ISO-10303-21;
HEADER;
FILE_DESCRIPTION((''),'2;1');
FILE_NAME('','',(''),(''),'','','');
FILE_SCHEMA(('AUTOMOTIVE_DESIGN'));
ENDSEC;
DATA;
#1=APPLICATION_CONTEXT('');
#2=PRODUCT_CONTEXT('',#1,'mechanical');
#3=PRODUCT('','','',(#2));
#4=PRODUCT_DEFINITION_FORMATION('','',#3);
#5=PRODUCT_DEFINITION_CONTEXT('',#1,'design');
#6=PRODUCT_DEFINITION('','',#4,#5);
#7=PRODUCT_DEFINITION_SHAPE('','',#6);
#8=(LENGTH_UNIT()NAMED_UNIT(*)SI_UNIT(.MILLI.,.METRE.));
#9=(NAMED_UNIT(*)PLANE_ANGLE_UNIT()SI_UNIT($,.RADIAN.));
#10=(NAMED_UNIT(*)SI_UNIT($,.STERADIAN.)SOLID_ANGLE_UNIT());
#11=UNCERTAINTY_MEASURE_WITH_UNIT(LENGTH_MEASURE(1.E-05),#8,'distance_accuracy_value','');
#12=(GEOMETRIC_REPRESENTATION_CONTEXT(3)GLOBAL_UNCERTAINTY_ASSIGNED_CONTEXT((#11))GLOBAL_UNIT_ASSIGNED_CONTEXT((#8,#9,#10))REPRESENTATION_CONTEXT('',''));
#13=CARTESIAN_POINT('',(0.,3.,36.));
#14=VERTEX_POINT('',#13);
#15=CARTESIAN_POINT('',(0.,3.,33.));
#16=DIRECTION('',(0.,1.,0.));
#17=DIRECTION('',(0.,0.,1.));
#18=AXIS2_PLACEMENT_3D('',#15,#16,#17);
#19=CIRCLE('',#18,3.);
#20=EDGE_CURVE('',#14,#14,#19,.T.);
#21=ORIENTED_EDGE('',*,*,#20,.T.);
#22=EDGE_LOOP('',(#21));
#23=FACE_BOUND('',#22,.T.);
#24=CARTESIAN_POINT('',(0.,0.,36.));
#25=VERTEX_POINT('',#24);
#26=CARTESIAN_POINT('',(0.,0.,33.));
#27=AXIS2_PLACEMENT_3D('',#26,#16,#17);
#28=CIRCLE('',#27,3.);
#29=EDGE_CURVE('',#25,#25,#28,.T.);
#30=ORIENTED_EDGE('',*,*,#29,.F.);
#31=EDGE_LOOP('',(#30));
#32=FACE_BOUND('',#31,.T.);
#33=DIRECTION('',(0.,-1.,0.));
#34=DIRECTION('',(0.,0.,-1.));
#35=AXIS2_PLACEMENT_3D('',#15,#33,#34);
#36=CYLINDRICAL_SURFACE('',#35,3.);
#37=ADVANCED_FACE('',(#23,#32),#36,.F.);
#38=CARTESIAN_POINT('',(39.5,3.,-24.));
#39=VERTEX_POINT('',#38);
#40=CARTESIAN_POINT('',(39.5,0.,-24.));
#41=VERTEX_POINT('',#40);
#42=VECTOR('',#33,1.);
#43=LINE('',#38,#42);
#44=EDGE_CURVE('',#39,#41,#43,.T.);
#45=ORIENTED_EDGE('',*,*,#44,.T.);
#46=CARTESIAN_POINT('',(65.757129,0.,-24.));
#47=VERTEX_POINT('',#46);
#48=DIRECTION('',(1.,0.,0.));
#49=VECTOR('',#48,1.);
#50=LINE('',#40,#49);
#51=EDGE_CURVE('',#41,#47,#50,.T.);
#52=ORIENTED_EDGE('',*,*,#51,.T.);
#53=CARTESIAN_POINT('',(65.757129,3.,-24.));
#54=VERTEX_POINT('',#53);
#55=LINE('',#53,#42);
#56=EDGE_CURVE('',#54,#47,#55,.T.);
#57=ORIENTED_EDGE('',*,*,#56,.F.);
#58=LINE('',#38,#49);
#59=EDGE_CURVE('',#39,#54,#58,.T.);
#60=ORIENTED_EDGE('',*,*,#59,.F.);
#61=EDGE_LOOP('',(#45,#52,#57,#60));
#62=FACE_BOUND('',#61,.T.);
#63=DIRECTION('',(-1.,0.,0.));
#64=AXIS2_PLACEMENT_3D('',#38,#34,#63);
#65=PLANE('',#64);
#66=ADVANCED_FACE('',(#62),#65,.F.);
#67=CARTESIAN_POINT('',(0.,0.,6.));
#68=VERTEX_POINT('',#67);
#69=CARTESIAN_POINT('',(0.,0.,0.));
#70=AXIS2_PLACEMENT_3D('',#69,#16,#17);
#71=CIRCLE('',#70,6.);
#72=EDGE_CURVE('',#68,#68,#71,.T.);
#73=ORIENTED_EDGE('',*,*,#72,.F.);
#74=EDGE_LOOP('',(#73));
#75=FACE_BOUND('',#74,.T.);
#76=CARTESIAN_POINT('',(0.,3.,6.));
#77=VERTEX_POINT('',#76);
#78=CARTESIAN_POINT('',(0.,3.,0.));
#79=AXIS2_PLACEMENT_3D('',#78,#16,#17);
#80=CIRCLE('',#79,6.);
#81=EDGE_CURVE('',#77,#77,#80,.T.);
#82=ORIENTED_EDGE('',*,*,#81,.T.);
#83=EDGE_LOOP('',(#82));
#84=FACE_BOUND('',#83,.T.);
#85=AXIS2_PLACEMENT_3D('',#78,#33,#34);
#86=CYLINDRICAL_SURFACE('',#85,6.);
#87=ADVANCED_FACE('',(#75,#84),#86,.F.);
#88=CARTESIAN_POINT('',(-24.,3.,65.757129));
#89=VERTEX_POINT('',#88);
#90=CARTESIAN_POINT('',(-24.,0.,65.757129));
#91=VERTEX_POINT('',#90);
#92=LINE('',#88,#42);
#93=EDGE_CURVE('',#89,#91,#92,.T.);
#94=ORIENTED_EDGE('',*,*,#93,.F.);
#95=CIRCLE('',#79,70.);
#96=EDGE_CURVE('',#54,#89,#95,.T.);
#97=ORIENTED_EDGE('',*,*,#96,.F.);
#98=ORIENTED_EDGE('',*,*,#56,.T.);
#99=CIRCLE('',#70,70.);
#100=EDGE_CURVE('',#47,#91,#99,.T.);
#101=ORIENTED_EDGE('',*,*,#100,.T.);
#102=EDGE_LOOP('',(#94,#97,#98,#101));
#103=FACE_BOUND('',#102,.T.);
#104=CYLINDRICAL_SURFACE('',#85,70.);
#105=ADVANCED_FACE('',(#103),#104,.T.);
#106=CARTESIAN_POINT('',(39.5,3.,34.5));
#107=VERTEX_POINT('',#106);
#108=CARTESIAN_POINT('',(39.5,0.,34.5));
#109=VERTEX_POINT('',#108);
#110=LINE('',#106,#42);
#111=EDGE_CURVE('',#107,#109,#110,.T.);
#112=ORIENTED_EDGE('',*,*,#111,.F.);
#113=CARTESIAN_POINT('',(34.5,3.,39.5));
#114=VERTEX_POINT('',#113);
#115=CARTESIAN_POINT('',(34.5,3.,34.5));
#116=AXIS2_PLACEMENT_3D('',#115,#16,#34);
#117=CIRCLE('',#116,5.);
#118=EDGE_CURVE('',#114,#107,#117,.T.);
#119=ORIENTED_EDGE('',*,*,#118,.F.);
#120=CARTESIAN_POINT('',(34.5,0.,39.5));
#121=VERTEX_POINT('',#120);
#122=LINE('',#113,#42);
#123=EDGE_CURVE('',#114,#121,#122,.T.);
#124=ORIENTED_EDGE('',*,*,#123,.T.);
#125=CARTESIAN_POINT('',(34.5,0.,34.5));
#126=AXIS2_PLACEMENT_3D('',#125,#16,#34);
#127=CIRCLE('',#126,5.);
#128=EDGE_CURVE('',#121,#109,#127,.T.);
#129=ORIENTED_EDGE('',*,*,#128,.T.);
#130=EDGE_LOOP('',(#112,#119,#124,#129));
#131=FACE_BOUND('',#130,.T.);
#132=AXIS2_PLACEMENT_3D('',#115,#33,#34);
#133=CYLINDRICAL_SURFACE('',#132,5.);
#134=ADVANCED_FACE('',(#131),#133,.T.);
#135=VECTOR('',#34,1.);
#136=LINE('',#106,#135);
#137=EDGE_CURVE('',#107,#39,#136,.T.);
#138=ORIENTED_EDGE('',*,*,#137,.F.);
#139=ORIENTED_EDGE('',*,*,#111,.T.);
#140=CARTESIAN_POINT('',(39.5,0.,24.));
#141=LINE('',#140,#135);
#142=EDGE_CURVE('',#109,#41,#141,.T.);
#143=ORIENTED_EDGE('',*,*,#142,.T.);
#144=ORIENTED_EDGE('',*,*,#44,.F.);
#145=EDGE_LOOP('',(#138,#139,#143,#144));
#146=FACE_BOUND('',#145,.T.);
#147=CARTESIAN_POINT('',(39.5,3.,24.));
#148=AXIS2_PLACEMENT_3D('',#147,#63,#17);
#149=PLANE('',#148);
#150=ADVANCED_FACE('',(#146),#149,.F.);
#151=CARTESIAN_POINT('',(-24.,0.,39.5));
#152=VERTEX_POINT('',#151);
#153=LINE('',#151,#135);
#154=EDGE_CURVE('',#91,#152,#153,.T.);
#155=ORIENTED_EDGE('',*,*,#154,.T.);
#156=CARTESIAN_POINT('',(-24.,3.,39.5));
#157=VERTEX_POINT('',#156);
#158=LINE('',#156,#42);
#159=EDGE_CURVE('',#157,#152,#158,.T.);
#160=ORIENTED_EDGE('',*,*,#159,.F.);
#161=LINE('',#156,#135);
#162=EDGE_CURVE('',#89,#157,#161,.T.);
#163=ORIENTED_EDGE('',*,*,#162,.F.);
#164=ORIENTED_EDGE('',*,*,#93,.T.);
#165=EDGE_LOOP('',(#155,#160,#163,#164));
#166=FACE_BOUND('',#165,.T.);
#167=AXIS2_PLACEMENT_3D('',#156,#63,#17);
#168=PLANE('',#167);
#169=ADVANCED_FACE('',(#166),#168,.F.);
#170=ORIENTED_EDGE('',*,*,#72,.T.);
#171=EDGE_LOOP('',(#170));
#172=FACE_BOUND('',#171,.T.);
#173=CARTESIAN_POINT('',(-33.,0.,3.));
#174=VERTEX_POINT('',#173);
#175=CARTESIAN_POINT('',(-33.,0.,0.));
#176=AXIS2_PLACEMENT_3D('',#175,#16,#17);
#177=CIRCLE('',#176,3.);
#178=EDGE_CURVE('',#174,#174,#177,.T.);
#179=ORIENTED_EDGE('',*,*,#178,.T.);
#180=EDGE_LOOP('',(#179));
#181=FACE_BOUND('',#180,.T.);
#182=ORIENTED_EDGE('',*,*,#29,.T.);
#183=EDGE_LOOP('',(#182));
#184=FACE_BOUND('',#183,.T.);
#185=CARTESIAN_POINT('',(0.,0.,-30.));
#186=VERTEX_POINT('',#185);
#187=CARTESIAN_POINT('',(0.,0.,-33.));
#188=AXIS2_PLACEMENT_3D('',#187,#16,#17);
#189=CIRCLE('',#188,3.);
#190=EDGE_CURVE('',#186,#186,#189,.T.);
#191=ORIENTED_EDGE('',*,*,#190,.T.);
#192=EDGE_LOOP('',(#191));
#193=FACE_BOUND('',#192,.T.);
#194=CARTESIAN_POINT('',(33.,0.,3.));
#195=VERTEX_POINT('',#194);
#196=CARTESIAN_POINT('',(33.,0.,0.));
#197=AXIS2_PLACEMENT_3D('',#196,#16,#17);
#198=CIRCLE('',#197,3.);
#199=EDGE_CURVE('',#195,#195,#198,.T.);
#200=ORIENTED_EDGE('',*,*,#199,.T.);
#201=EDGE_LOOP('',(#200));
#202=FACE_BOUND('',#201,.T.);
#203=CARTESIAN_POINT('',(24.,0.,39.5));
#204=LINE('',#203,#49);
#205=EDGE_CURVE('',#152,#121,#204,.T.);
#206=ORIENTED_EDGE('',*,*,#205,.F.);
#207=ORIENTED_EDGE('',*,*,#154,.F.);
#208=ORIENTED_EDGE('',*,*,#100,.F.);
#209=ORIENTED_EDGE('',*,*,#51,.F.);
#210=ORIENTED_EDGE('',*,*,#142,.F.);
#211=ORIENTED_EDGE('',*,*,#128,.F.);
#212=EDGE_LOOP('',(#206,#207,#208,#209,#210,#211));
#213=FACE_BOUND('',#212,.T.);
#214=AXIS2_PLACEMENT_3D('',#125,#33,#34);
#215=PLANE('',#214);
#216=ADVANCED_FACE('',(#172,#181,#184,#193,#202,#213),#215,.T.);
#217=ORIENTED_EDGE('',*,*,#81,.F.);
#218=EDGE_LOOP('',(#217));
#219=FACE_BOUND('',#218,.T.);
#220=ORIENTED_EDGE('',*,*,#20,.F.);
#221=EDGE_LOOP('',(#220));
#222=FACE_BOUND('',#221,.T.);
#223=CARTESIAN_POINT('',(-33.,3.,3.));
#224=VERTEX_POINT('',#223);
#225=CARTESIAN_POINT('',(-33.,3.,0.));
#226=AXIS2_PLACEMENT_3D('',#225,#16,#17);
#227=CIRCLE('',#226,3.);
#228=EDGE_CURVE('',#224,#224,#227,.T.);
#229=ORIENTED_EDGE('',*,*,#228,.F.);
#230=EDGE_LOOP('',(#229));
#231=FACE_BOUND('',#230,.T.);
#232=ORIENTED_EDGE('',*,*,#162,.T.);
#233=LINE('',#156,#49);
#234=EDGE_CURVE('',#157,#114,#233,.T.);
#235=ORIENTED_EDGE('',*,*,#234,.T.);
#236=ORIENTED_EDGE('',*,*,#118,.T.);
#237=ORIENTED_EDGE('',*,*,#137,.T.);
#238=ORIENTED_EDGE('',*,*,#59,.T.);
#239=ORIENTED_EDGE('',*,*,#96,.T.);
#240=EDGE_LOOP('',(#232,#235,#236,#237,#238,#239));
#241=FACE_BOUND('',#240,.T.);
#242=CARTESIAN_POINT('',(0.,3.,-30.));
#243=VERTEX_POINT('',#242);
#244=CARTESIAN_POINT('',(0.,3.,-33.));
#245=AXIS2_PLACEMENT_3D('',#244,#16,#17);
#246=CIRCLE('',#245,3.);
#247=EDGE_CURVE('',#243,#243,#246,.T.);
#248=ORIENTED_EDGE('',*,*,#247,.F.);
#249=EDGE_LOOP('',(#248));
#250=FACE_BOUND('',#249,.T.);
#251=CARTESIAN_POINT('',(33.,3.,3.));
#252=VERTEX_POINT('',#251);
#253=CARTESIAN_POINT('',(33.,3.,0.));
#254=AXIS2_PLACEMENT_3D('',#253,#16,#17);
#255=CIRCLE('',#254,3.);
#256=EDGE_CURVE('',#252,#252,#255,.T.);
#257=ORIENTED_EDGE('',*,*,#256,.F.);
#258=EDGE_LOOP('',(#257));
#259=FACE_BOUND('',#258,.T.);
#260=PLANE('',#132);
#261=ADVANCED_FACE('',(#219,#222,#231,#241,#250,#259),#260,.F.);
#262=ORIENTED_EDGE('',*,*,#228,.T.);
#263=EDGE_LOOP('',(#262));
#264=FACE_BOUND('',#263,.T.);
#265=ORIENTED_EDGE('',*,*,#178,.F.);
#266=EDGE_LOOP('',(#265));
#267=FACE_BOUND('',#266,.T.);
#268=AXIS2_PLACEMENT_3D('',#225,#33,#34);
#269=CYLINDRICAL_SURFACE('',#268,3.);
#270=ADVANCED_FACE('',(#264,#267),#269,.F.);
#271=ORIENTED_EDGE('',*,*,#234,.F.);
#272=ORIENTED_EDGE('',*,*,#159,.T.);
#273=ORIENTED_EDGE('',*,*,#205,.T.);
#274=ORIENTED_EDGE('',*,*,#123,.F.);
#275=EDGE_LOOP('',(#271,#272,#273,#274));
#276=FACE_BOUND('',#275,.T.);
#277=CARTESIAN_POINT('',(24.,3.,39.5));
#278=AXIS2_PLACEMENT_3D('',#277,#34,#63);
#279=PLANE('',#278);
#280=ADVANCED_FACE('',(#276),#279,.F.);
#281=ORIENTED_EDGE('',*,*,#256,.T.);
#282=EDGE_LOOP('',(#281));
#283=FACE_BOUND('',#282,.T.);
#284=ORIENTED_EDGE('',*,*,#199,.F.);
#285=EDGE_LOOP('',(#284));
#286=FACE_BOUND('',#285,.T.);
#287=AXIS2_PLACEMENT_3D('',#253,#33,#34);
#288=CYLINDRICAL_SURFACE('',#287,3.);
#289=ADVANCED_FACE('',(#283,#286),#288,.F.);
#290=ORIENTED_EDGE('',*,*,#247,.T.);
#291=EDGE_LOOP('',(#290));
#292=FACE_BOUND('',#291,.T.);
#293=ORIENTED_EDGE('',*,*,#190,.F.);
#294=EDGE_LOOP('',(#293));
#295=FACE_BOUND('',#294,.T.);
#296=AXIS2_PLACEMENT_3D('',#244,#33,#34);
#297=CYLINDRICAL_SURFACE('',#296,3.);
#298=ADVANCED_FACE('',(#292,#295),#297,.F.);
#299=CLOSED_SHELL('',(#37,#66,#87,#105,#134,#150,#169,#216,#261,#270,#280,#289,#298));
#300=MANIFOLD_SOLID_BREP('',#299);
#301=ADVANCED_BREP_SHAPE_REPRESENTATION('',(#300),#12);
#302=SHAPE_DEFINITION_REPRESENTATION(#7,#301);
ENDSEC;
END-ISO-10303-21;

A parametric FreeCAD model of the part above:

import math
import FreeCAD as App
import Part
import Sketcher
from FreeCAD import Vector

doc = App.newDocument("Part")
body = doc.addObject("PartDesign::Body", "Body")

# Sketch on XZ plane
sketch1 = doc.addObject("Sketcher::SketchObject", "Sketch")
body.addObject(sketch1)
sketch1.AttachmentSupport = (doc.XZ_Plane, [""])
sketch1.MapMode = "FlatFace"
sketch1.addGeometry([
    Part.ArcOfCircle(Part.Circle(Vector(34.5, 34.5, 0), Vector(0, 0, 1), 5), math.radians(0), math.radians(90)),  # 0
    Part.LineSegment(Vector(39.5, 34.5, 0), Vector(39.5, -24, 0)),  # 1
    Part.LineSegment(Vector(39.5, -24, 0), Vector(65.8, -24, 0)),  # 2
    Part.ArcOfCircle(Part.Circle(Vector(0, 0, 0), Vector(0, 0, 1), 70), math.radians(110), math.radians(340)),  # 3
    Part.LineSegment(Vector(-24, 65.8, 0), Vector(-24, 39.5, 0)),  # 4
    Part.LineSegment(Vector(-24, 39.5, 0), Vector(34.5, 39.5, 0)),  # 5
    Part.Circle(Vector(0, 33, 0), Vector(0, 0, 1), 3),  # 6
    Part.Circle(Vector(-33, 0, 0), Vector(0, 0, 1), 3),  # 7
    Part.Circle(Vector(0, 0, 0), Vector(0, 0, 1), 6),  # 8
    Part.Circle(Vector(33, 0, 0), Vector(0, 0, 1), 3),  # 9
    Part.Circle(Vector(0, -33, 0), Vector(0, 0, 1), 3),  # 10
], False)
sketch1.addConstraint([
    Sketcher.Constraint("Tangent", 0, 1, 1, 1),
    Sketcher.Constraint("Coincident", 1, 2, 2, 1),
    Sketcher.Constraint("Coincident", 2, 2, 3, 2),
    Sketcher.Constraint("Coincident", 3, 1, 4, 1),
    Sketcher.Constraint("Coincident", 4, 2, 5, 1),
    Sketcher.Constraint("Tangent", 5, 2, 0, 2),
    Sketcher.Constraint("Vertical", 1),
    Sketcher.Constraint("Horizontal", 2),
    Sketcher.Constraint("Vertical", 4),
    Sketcher.Constraint("Horizontal", 5),
    Sketcher.Constraint("Coincident", 3, 3, -1, 1),
    Sketcher.Constraint("Coincident", 8, 3, -1, 1),
    Sketcher.Constraint("Equal", 6, 7),
    Sketcher.Constraint("Equal", 7, 9),
    Sketcher.Constraint("Equal", 9, 10),
    Sketcher.Constraint("Symmetric", 7, 3, 9, 3, -1, 1),
    Sketcher.Constraint("Symmetric", 6, 3, 10, 3, -1, 1),
    Sketcher.Constraint("PointOnObject", 6, 3, -2),
    Sketcher.Constraint("PointOnObject", 7, 3, -1),
    Sketcher.Constraint("Equal", 5, 1),
    Sketcher.Constraint("Equal", 2, 4),
    Sketcher.Constraint("Diameter", 6, 6.0),
    Sketcher.Constraint("Diameter", 8, 12.0),
    Sketcher.Constraint("Radius", 0, 5.0),
    Sketcher.Constraint("Radius", 3, 70.0),
    Sketcher.Constraint("DistanceX", 5, 1, 5, 2, 58.5),
    Sketcher.Constraint("DistanceY", -1, 1, 6, 3, 33.0),
    Sketcher.Constraint("DistanceX", 7, 3, -1, 1, 33.0),
    Sketcher.Constraint("DistanceY", 1, 2, -1, 1, 24.0),
])
pad1 = doc.addObject("PartDesign::Pad", "Pad")
body.addObject(pad1)
pad1.Profile = sketch1
pad1.Length = 3
pad1.Reversed = True

doc.recompute()
